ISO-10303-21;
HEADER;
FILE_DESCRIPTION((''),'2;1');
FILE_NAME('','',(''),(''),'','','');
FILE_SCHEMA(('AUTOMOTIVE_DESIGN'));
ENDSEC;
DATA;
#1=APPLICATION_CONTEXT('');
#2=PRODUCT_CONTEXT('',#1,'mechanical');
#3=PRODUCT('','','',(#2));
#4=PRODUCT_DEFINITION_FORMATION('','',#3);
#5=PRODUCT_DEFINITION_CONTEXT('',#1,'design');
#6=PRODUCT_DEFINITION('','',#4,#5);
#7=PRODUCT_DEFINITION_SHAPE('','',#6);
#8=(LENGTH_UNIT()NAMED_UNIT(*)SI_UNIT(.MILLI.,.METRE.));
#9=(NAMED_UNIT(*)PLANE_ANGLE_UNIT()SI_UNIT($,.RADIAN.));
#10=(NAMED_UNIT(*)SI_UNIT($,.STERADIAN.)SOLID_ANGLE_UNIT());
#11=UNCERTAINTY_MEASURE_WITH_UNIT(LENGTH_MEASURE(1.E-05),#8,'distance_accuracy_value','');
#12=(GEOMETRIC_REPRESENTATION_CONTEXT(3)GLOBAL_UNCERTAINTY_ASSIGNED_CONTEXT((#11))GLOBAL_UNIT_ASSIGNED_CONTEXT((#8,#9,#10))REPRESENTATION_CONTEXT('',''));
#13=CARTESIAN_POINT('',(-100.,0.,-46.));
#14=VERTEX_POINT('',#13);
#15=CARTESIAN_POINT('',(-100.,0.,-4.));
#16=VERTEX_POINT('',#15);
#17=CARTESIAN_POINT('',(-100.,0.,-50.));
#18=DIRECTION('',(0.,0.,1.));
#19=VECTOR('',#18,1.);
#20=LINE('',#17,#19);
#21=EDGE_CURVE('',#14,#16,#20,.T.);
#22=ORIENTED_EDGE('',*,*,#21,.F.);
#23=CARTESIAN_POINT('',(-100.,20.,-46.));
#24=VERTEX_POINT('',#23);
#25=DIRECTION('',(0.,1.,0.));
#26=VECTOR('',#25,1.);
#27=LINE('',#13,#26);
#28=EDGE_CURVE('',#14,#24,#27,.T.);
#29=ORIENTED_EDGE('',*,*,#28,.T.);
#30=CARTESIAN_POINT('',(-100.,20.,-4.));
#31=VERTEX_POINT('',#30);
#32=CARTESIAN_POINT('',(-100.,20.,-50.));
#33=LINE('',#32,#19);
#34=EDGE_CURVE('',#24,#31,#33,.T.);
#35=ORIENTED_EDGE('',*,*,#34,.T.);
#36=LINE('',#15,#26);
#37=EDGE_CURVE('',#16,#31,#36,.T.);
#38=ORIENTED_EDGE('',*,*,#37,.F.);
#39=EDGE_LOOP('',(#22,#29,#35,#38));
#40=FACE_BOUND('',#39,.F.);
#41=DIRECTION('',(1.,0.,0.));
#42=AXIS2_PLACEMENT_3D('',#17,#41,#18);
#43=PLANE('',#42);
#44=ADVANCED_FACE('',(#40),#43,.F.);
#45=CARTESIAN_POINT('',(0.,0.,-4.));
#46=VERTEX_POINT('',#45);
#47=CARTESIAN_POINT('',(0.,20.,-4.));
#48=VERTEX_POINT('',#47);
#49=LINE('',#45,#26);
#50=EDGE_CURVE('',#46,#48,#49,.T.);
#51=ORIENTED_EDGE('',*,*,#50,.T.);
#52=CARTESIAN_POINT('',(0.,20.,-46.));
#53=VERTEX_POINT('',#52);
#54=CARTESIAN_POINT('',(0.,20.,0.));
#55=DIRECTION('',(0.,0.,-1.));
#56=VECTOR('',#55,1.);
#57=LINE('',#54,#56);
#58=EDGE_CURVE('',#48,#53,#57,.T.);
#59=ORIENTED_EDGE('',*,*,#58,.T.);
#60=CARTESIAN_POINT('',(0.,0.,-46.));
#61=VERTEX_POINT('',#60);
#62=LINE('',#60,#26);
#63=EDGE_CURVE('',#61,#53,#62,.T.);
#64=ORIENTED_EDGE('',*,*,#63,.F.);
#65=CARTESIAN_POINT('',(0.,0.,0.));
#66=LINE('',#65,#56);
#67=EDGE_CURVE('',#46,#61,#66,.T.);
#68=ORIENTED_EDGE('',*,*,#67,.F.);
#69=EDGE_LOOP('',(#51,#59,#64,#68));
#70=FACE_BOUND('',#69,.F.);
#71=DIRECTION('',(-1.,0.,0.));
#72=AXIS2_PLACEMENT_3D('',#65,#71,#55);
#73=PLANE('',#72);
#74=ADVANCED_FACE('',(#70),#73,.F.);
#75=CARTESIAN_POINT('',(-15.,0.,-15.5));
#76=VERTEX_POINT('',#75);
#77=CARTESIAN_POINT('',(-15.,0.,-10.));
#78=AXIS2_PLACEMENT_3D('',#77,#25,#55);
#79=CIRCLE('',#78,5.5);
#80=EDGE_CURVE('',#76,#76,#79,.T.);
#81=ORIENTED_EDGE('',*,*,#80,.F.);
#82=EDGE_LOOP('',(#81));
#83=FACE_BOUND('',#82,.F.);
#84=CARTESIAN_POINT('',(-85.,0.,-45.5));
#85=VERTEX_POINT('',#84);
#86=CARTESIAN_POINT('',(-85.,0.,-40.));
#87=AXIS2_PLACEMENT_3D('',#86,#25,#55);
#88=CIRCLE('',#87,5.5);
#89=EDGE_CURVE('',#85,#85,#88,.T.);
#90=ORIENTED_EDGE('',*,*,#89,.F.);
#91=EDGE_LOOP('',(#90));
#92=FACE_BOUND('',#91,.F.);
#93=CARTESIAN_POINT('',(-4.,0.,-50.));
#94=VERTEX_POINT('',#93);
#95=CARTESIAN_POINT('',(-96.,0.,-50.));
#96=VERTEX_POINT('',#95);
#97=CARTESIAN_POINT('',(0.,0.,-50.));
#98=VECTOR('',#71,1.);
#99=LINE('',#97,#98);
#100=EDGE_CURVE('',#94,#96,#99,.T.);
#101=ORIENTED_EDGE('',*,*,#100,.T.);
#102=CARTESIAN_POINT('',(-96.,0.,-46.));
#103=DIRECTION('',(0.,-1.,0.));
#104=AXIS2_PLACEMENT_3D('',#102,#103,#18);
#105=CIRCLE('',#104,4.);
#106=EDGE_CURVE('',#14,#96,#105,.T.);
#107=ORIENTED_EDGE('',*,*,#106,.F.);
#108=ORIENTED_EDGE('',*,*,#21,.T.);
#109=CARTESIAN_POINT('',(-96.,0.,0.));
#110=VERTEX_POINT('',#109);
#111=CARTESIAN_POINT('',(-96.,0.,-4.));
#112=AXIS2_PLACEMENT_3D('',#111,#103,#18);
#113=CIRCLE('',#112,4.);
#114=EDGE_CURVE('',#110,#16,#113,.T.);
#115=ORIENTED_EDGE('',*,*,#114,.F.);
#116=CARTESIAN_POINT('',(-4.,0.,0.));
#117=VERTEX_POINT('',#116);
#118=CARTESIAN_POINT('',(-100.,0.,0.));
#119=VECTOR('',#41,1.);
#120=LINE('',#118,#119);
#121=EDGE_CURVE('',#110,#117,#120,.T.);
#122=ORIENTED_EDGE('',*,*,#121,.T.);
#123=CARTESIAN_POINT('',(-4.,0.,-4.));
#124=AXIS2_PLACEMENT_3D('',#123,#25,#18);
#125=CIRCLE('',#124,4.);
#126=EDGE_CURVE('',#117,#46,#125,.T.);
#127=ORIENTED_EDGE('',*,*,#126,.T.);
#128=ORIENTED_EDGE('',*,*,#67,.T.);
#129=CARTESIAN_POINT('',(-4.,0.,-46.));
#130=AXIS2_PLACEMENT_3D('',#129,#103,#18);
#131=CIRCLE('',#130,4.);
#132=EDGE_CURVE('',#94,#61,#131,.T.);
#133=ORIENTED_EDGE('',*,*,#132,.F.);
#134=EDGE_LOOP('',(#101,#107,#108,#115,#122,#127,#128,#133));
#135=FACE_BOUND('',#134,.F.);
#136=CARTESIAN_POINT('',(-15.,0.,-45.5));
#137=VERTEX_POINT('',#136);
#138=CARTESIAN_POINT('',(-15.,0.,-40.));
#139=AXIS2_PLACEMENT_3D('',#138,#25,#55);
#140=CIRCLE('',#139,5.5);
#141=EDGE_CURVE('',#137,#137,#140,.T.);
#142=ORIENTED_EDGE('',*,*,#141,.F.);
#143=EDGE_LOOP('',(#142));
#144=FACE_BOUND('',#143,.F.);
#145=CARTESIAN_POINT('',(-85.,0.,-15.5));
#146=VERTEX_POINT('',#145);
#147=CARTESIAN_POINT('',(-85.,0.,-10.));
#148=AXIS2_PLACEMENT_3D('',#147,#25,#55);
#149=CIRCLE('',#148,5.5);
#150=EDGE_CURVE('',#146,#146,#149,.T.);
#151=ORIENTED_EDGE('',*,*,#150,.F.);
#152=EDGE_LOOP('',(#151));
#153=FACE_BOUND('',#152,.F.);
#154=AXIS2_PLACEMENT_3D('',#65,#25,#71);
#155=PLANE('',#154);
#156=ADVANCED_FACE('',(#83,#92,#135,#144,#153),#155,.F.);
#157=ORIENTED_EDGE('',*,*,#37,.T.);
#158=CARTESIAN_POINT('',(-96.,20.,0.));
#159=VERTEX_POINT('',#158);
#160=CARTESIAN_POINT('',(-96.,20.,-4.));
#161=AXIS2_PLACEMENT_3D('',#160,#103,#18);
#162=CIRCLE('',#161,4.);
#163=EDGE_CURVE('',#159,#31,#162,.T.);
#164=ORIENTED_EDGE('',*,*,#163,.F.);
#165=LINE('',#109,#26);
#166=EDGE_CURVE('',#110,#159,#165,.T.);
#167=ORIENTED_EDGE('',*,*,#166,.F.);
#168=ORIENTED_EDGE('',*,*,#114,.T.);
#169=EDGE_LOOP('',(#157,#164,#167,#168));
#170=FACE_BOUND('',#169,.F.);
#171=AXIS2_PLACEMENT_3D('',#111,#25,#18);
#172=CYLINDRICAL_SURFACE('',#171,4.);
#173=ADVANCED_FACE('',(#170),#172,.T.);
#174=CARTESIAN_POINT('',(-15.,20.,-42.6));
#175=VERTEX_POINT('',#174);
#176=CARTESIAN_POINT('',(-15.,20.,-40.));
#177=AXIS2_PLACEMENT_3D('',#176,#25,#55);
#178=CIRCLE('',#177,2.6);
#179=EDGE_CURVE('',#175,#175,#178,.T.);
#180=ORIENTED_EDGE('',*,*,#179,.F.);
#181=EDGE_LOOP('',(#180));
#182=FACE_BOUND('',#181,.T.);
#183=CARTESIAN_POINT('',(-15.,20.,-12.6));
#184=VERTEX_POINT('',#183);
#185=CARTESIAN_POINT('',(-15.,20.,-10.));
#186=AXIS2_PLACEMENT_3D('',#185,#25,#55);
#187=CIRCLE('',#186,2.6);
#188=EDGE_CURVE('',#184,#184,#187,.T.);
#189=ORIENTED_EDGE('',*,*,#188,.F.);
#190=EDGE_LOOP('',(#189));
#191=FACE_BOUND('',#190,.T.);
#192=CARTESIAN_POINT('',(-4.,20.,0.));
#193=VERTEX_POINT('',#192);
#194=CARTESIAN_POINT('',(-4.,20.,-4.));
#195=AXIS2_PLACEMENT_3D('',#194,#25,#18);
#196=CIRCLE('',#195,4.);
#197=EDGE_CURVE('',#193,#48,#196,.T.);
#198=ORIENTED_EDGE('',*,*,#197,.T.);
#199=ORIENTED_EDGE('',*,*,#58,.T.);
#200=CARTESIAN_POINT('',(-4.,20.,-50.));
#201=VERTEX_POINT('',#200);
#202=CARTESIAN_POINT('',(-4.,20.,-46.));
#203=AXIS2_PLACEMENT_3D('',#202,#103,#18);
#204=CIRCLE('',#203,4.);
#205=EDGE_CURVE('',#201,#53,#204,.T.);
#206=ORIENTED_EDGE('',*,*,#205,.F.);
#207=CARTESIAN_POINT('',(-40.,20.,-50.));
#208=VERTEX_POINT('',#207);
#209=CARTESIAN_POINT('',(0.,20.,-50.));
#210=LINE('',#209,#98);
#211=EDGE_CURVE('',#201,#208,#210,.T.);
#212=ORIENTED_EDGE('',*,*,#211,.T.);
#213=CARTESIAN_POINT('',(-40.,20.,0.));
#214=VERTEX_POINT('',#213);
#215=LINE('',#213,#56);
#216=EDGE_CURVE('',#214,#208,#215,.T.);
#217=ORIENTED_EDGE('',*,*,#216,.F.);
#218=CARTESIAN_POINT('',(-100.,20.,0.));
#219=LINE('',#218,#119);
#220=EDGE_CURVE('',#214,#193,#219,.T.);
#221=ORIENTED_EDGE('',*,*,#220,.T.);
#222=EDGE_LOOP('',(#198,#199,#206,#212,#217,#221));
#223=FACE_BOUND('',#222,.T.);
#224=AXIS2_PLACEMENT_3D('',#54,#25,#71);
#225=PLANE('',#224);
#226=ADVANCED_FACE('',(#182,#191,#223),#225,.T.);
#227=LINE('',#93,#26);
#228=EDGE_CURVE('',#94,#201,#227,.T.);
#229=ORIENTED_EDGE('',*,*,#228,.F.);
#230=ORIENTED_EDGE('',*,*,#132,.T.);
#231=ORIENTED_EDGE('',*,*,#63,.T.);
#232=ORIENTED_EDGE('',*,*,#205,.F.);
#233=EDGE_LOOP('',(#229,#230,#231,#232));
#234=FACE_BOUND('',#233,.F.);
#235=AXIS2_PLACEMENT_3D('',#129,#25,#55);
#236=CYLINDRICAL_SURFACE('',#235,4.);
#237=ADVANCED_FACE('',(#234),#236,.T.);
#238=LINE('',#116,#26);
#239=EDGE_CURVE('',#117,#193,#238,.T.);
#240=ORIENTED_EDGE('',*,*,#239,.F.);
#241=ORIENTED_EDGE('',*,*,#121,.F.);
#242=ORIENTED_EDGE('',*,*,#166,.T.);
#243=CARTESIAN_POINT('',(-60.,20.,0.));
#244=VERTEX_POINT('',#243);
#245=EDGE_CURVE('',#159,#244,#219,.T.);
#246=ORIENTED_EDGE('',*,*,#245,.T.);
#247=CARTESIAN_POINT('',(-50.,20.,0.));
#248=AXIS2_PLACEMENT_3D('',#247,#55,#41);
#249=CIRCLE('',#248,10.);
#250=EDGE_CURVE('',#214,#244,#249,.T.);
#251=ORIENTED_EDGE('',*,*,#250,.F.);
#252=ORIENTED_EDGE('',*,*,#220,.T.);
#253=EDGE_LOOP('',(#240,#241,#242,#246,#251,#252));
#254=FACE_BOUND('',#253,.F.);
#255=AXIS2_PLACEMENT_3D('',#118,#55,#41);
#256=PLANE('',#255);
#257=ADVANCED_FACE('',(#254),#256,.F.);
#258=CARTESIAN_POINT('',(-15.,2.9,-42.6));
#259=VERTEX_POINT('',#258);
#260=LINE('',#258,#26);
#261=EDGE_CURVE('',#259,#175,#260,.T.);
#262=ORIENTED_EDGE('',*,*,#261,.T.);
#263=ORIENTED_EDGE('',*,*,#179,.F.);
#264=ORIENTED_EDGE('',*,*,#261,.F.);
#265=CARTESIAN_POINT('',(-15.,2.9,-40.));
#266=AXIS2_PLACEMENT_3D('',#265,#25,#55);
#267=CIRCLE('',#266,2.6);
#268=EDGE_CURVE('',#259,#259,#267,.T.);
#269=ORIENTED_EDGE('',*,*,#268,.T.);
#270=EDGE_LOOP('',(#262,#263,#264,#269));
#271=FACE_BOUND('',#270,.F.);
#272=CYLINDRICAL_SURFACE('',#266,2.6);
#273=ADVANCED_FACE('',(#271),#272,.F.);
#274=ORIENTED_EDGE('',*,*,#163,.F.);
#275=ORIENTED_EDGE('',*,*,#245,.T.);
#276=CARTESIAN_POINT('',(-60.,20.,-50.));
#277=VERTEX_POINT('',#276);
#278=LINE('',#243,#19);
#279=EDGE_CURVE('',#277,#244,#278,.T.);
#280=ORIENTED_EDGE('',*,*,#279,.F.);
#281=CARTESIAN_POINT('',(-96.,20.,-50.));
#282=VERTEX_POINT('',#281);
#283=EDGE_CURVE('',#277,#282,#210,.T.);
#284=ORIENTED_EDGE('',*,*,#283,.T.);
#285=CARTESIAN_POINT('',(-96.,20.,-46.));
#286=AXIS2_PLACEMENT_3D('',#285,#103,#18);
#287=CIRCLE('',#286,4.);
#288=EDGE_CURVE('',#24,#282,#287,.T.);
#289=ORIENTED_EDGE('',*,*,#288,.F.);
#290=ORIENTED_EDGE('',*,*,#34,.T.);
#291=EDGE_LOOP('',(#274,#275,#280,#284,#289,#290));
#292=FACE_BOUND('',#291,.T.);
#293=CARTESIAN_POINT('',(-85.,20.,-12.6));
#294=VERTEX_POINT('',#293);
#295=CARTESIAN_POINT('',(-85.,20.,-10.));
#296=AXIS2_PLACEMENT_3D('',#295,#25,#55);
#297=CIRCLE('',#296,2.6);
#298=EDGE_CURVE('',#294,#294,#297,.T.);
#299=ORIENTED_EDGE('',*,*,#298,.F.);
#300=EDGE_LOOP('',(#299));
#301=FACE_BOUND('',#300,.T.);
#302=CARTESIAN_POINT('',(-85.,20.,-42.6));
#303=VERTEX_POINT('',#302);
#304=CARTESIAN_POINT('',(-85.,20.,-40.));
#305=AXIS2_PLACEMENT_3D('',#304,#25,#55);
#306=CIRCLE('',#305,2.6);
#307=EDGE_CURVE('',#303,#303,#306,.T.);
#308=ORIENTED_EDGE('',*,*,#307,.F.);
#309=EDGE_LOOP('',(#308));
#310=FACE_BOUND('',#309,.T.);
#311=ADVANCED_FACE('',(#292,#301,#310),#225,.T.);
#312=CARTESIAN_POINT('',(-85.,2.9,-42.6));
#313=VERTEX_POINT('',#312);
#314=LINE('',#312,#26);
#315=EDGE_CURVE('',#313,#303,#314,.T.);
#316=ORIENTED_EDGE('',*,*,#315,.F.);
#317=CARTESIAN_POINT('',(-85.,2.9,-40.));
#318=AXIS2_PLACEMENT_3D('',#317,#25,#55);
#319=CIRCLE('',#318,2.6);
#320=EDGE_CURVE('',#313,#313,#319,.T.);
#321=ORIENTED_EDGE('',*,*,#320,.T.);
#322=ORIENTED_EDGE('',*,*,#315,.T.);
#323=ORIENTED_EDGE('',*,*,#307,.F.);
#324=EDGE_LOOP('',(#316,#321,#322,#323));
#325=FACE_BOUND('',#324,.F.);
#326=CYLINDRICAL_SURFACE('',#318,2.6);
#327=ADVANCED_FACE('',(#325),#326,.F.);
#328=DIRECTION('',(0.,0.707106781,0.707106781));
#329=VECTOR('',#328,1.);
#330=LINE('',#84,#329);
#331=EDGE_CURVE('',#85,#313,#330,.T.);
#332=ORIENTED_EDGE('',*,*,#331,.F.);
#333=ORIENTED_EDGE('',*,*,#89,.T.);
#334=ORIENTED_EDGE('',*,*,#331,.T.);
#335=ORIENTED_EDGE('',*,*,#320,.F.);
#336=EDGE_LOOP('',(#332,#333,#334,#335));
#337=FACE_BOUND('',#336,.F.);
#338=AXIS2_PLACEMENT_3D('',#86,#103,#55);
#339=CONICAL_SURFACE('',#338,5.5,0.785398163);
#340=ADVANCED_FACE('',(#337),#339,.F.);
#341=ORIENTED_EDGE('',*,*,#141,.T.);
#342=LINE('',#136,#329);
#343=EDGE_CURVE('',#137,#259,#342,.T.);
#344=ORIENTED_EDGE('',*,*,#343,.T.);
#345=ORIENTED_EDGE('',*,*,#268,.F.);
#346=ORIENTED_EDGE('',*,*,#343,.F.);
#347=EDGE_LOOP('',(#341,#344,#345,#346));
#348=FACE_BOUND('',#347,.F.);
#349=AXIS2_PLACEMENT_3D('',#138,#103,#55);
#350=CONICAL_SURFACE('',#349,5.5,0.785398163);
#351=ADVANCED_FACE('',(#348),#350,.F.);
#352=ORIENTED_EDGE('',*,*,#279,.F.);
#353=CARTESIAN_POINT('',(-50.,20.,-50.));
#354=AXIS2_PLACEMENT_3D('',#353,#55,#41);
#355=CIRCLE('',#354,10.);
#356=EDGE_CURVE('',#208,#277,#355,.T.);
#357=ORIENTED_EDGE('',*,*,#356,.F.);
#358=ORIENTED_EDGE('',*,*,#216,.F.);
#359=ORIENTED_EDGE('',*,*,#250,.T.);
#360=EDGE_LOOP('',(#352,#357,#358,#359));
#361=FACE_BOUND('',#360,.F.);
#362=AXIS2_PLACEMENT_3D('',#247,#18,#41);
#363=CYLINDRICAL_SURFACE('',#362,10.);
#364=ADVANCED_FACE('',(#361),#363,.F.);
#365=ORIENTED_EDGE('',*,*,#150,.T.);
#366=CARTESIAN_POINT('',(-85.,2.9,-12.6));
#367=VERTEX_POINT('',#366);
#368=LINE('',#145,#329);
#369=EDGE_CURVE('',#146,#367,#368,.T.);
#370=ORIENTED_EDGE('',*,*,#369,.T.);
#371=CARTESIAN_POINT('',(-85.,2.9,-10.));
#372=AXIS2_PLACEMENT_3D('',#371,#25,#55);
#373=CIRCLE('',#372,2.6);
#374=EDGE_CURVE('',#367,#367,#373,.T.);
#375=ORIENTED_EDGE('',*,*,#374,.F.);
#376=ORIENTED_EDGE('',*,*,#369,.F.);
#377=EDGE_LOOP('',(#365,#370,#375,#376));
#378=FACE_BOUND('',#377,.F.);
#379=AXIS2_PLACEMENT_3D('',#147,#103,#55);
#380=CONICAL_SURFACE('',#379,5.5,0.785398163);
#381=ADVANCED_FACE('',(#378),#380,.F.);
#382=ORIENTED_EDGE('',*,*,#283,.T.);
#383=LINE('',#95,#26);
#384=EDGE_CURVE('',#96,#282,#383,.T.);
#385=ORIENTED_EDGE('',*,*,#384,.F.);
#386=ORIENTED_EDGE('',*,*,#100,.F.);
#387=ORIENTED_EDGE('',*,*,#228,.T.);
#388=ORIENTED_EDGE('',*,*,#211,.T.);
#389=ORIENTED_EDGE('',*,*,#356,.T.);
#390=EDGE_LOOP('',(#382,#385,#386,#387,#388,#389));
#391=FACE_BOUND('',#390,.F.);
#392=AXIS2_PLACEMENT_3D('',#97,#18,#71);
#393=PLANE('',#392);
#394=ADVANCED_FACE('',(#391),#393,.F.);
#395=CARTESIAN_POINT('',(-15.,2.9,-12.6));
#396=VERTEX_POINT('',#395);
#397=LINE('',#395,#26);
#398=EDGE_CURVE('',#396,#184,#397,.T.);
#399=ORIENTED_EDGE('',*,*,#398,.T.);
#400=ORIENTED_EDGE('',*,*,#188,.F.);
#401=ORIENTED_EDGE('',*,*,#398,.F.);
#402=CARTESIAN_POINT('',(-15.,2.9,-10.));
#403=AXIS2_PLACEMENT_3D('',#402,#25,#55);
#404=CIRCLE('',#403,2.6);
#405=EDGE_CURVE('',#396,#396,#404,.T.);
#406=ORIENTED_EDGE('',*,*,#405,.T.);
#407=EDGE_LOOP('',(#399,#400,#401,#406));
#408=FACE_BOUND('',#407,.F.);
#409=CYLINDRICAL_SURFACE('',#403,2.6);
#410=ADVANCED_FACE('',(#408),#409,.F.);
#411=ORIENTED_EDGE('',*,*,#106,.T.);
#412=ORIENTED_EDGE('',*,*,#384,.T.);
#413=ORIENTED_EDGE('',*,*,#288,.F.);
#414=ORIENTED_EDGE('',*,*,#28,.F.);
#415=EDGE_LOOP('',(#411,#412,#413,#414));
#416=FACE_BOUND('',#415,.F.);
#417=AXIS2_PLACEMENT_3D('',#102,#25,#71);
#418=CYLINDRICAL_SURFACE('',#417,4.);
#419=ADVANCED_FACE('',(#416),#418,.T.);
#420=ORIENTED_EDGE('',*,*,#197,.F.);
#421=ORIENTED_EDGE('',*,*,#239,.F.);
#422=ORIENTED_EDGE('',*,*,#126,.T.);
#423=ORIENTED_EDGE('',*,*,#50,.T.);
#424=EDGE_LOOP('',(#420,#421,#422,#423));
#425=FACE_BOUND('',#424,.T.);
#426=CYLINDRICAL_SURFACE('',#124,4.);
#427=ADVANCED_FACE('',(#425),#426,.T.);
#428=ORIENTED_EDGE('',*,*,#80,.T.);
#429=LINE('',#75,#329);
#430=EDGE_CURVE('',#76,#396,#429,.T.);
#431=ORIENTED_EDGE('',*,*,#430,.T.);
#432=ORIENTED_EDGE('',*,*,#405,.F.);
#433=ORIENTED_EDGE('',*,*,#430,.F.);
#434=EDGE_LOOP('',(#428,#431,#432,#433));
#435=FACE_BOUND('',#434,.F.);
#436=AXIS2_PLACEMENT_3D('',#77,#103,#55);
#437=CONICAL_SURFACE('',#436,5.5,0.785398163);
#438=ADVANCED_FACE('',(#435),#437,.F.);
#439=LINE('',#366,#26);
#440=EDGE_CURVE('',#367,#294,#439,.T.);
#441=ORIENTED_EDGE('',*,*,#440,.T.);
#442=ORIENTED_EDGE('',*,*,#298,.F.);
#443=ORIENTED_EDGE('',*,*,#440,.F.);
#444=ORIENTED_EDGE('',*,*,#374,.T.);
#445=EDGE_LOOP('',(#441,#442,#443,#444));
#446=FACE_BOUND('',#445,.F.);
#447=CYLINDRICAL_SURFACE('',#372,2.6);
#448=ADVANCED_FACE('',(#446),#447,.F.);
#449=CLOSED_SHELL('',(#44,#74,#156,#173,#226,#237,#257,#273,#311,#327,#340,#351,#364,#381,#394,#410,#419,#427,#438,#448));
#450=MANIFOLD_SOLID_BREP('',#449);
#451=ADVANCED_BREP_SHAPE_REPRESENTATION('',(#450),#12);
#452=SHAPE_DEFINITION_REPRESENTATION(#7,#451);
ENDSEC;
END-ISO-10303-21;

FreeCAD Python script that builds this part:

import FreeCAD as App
import Part
import Sketcher

V = App.Vector
Q = App.Units.Quantity


def edges_at(feature, points):
    """Names of the edges that pass closest to the given points."""
    edges = feature.Shape.Edges
    near = lambda p: min(range(len(edges)), key=lambda i: edges[i].distToShape(Part.Vertex(*p))[0])
    return sorted({f"Edge{near(p) + 1}" for p in points})

doc = App.newDocument("Part")
body = doc.addObject("PartDesign::Body", "Body")

sketch1 = doc.addObject("Sketcher::SketchObject", "Sketch")
body.addObject(sketch1)
sketch1.AttachmentSupport = (doc.XZ_Plane, [""])
sketch1.MapMode = "FlatFace"
sketch1.addGeometry([
    Part.LineSegment(V(-100, 0, 0), V(0, 0, 0)),
    Part.LineSegment(V(0, 0, 0), V(0, -50, 0)),
    Part.LineSegment(V(0, -50, 0), V(-100, -50, 0)),
    Part.LineSegment(V(-100, -50, 0), V(-100, 0, 0)),
], False)
sketch1.addConstraint([
    Sketcher.Constraint("Coincident", 0, 2, 1, 1),
    Sketcher.Constraint("Coincident", 1, 2, 2, 1),
    Sketcher.Constraint("Coincident", 2, 2, 3, 1),
    Sketcher.Constraint("Coincident", 3, 2, 0, 1),
    Sketcher.Constraint("Horizontal", 0),
    Sketcher.Constraint("Vertical", 1),
    Sketcher.Constraint("Horizontal", 2),
    Sketcher.Constraint("Vertical", 3),
    Sketcher.Constraint("Coincident", 0, 2, -1, 1),
    Sketcher.Constraint("DistanceX", 0, 1, 0, 2, Q("100 mm")),
    Sketcher.Constraint("DistanceY", 1, 2, 1, 1, Q("50 mm")),
])
pad1 = doc.addObject("PartDesign::Pad", "Pad")
body.addObject(pad1)
pad1.Profile = sketch1
pad1.Length = 20
pad1.Reversed = True
doc.recompute()

fillet = doc.addObject("PartDesign::Fillet", "Fillet")
body.addObject(fillet)
fillet.Base = (pad1, edges_at(pad1, [
    (0, 10, 0),
    (0, 10, -50),
    (-100, 10, -50),
    (-100, 10, 0),
]))
fillet.Radius = 4

sketch2 = doc.addObject("Sketcher::SketchObject", "Sketch001")
body.addObject(sketch2)
sketch2.AttachmentSupport = (doc.XY_Plane, [""])
sketch2.MapMode = "FlatFace"
sketch2.addGeometry(Part.Circle(V(-50, 20, 0), V(0, 0, 1), 10), False)
sketch2.addConstraint([
    Sketcher.Constraint("Diameter", 0, Q("20 mm")),
    Sketcher.Constraint("DistanceY", -1, 1, 0, 3, Q("20 mm")),
    Sketcher.Constraint("DistanceX", 0, 3, -1, 1, Q("50 mm")),
])
pocket1 = doc.addObject("PartDesign::Pocket", "Pocket")
body.addObject(pocket1)
pocket1.Profile = sketch2
pocket1.Type = "ThroughAll"

sketch3 = doc.addObject("Sketcher::SketchObject", "Sketch002")
body.addObject(sketch3)
sketch3.AttachmentSupport = (doc.XZ_Plane, [""])
sketch3.MapMode = "FlatFace"
sketch3.addGeometry([
    Part.Circle(V(-85, -40, 0), V(0, 0, 1), 2.6),
    Part.Circle(V(-85, -10, 0), V(0, 0, 1), 2.6),
    Part.Circle(V(-15, -40, 0), V(0, 0, 1), 2.6),
    Part.Circle(V(-15, -10, 0), V(0, 0, 1), 2.6),
], False)
sketch3.addConstraint([
    Sketcher.Constraint("Equal", 0, 1),
    Sketcher.Constraint("Equal", 1, 2),
    Sketcher.Constraint("Equal", 2, 3),
    Sketcher.Constraint("Horizontal", 0, 3, 2, 3),
    Sketcher.Constraint("Horizontal", 1, 3, 3, 3),
    Sketcher.Constraint("Vertical", 0, 3, 1, 3),
    Sketcher.Constraint("Vertical", 2, 3, 3, 3),
    Sketcher.Constraint("Diameter", 0, Q("5.2 mm")),
    Sketcher.Constraint("DistanceX", 0, 3, -1, 1, Q("85 mm")),
    Sketcher.Constraint("DistanceY", 0, 3, -1, 1, Q("40 mm")),
    Sketcher.Constraint("DistanceY", 1, 3, -1, 1, Q("10 mm")),
    Sketcher.Constraint("DistanceX", 2, 3, -1, 1, Q("15 mm")),
])
doc.recompute()
hole = doc.addObject("PartDesign::Hole", "Hole")
body.addObject(hole)
hole.Profile = sketch3
hole.ThreadType = "None"
hole.Diameter = 5.2
hole.DepthType = "ThroughAll"
hole.HoleCutType = "Countersink"
hole.HoleCutDiameter = 11
hole.HoleCutCountersinkAngle = 90

doc.recompute()
